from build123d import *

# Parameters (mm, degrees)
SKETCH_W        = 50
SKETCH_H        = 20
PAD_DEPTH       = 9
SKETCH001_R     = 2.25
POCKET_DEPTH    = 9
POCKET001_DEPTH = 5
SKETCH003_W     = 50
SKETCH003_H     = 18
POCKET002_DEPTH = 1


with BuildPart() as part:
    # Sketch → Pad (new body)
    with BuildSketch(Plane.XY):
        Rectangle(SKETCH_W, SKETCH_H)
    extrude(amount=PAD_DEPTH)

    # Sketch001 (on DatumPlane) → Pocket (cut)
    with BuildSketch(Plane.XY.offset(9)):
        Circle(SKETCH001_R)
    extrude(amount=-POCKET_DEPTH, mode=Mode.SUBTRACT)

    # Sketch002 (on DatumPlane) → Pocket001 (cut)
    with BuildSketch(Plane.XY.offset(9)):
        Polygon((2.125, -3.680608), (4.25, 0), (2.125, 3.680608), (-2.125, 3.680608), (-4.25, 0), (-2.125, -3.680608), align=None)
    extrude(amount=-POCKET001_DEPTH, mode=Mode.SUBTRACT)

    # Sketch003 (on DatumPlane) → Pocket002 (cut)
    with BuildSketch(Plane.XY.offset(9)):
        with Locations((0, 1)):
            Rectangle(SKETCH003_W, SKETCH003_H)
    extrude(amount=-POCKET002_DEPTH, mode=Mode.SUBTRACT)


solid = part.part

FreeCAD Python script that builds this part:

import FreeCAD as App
import Part
import Sketcher

V = App.Vector
Q = App.Units.Quantity

doc = App.newDocument("Part")
body = doc.addObject("PartDesign::Body", "Body")

# Sketch on XY plane
sketch1 = doc.addObject("Sketcher::SketchObject", "Sketch")
body.addObject(sketch1)
sketch1.AttachmentSupport = (doc.XY_Plane, [""])
sketch1.MapMode = "FlatFace"
sketch1.addGeometry([
    Part.LineSegment(V(-25, 10, 0), V(-25, -10, 0)),
    Part.LineSegment(V(-25, -10, 0), V(25, -10, 0)),
    Part.LineSegment(V(25, -10, 0), V(25, 10, 0)),
    Part.LineSegment(V(25, 10, 0), V(-25, 10, 0)),
], False)
sketch1.addConstraint([
    Sketcher.Constraint("Coincident", 0, 2, 1, 1),
    Sketcher.Constraint("Coincident", 1, 2, 2, 1),
    Sketcher.Constraint("Coincident", 2, 2, 3, 1),
    Sketcher.Constraint("Coincident", 3, 2, 0, 1),
    Sketcher.Constraint("Vertical", 0),
    Sketcher.Constraint("Horizontal", 1),
    Sketcher.Constraint("Vertical", 2),
    Sketcher.Constraint("Horizontal", 3),
    Sketcher.Constraint("Symmetric", 0, 2, 2, 2, -1, 1),
    Sketcher.Constraint("DistanceX", 1, 1, 1, 2, Q("50 mm")),
    Sketcher.Constraint("DistanceY", 0, 2, 0, 1, Q("20 mm")),
])
pad1 = doc.addObject("PartDesign::Pad", "Pad")
body.addObject(pad1)
pad1.Profile = sketch1
pad1.Length = 9

# Sketch on XY plane
sketch2 = doc.addObject("Sketcher::SketchObject", "Sketch001")
body.addObject(sketch2)
sketch2.AttachmentSupport = (doc.XY_Plane, [""])
sketch2.MapMode = "FlatFace"
sketch2.AttachmentOffset = App.Placement(V(0, 0, 9), App.Rotation())
sketch2.addGeometry(Part.Circle(V(0, 0, 0), V(0, 0, 1), 2.2), False)
sketch2.addConstraint([
    Sketcher.Constraint("Coincident", 0, 3, -1, 1),
    Sketcher.Constraint("Diameter", 0, Q("4.5 mm")),
])
pocket1 = doc.addObject("PartDesign::Pocket", "Pocket")
body.addObject(pocket1)
pocket1.Profile = sketch2
pocket1.Length = 9

# Sketch on XY plane
sketch3 = doc.addObject("Sketcher::SketchObject", "Sketch002")
body.addObject(sketch3)
sketch3.AttachmentSupport = (doc.XY_Plane, [""])
sketch3.MapMode = "FlatFace"
sketch3.AttachmentOffset = App.Placement(V(0, 0, 9), App.Rotation())
sketch3.addGeometry([
    Part.LineSegment(V(2.1, -3.7, 0), V(4.2, 0, 0)),  # 0
    Part.LineSegment(V(4.2, 0, 0), V(2.1, 3.7, 0)),  # 1
    Part.LineSegment(V(2.1, 3.7, 0), V(-2.1, 3.7, 0)),  # 2
    Part.LineSegment(V(-2.1, 3.7, 0), V(-4.2, 0, 0)),  # 3
    Part.LineSegment(V(-4.2, 0, 0), V(-2.1, -3.7, 0)),  # 4
    Part.LineSegment(V(-2.1, -3.7, 0), V(2.1, -3.7, 0)),  # 5
], False)
sketch3.addConstraint([
    Sketcher.Constraint("Coincident", 0, 2, 1, 1),
    Sketcher.Constraint("Coincident", 1, 2, 2, 1),
    Sketcher.Constraint("Coincident", 2, 2, 3, 1),
    Sketcher.Constraint("Coincident", 3, 2, 4, 1),
    Sketcher.Constraint("Coincident", 4, 2, 5, 1),
    Sketcher.Constraint("Coincident", 5, 2, 0, 1),
    Sketcher.Constraint("Horizontal", 2),
    Sketcher.Constraint("Horizontal", 5),
    Sketcher.Constraint("Symmetric", 0, 2, 3, 2, -1, 1),
    Sketcher.Constraint("Symmetric", 1, 2, 4, 2, -1, 1),
    Sketcher.Constraint("PointOnObject", 0, 2, -1),
    Sketcher.Constraint("Parallel", 0, 3),
    Sketcher.Constraint("Vertical", 2, 2, 4, 2),
    Sketcher.Constraint("Angle", 0, Q("60 deg")),
    Sketcher.Constraint("DistanceX", 2, 2, 2, 1, Q("4.25 mm")),
    Sketcher.Constraint("DistanceX", 3, 2, 0, 2, Q("8.5 mm")),
])
pocket2 = doc.addObject("PartDesign::Pocket", "Pocket001")
body.addObject(pocket2)
pocket2.Profile = sketch3
pocket2.Length = 5

# Sketch on XY plane
sketch4 = doc.addObject("Sketcher::SketchObject", "Sketch003")
body.addObject(sketch4)
sketch4.AttachmentSupport = (doc.XY_Plane, [""])
sketch4.MapMode = "FlatFace"
sketch4.AttachmentOffset = App.Placement(V(0, 0, 9), App.Rotation())
sketch4.addGeometry([
    Part.LineSegment(V(-25, 10, 0), V(-25, -8, 0)),
    Part.LineSegment(V(-25, -8, 0), V(25, -8, 0)),
    Part.LineSegment(V(25, -8, 0), V(25, 10, 0)),
    Part.LineSegment(V(25, 10, 0), V(-25, 10, 0)),
], False)
sketch4.addConstraint([
    Sketcher.Constraint("Coincident", 0, 2, 1, 1),
    Sketcher.Constraint("Coincident", 1, 2, 2, 1),
    Sketcher.Constraint("Coincident", 2, 2, 3, 1),
    Sketcher.Constraint("Coincident", 3, 2, 0, 1),
    Sketcher.Constraint("Vertical", 0),
    Sketcher.Constraint("Horizontal", 1),
    Sketcher.Constraint("Vertical", 2),
    Sketcher.Constraint("Horizontal", 3),
    Sketcher.Constraint("DistanceX", 1, 1, 1, 2, Q("50 mm")),
    Sketcher.Constraint("DistanceY", 0, 2, 0, 1, Q("18 mm")),
    Sketcher.Constraint("DistanceX", 0, 2, -1, 1, Q("25 mm")),
    Sketcher.Constraint("DistanceY", 0, 2, -1, 1, Q("8 mm")),
])
pocket3 = doc.addObject("PartDesign::Pocket", "Pocket002")
body.addObject(pocket3)
pocket3.Profile = sketch4
pocket3.Length = 1

doc.recompute()
